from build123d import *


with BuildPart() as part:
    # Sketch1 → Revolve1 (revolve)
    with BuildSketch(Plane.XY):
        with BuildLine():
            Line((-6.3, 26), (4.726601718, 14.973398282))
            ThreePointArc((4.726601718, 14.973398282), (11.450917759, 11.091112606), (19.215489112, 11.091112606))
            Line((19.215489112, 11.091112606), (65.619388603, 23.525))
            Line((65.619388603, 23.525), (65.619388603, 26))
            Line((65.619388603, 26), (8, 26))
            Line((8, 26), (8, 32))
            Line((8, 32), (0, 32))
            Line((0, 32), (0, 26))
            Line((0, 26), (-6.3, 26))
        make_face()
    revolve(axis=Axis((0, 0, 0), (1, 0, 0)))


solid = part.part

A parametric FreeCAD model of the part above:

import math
import FreeCAD as App
import Part
import Sketcher
from FreeCAD import Vector
Q = App.Units.Quantity

doc = App.newDocument("Part")
body = doc.addObject("PartDesign::Body", "Body")

# Sketch on XY plane
sketch1 = body.newObject("Sketcher::SketchObject", "Sketch")
sketch1.AttachmentSupport = (doc.getObject("XY_Plane"), [""])
sketch1.MapMode = "FlatFace"
sketch1.addGeometry(Part.LineSegment(Vector(-6.3, 26, 0), Vector(4.7, 15, 0)), False)
sketch1.addGeometry(Part.ArcOfCircle(Part.Circle(Vector(15.3, 25.6, 0), Vector(0, 0, 1), 15), math.radians(-135), math.radians(-75)), False)
sketch1.addGeometry(Part.LineSegment(Vector(19.2, 11.1, 0), Vector(65.6, 23.5, 0)), False)
sketch1.addGeometry(Part.LineSegment(Vector(65.6, 23.5, 0), Vector(65.6, 26, 0)), False)
sketch1.addGeometry(Part.LineSegment(Vector(65.6, 26, 0), Vector(8, 26, 0)), False)
sketch1.addGeometry(Part.LineSegment(Vector(8, 26, 0), Vector(8, 32, 0)), False)
sketch1.addGeometry(Part.LineSegment(Vector(8, 32, 0), Vector(0, 32, 0)), False)
sketch1.addGeometry(Part.LineSegment(Vector(0, 32, 0), Vector(0, 26, 0)), False)
sketch1.addGeometry(Part.LineSegment(Vector(0, 26, 0), Vector(-6.3, 26, 0)), False)
sketch1.addConstraint(Sketcher.Constraint("Tangent", 0, 2, 1, 1))
sketch1.addConstraint(Sketcher.Constraint("Tangent", 1, 2, 2, 1))
sketch1.addConstraint(Sketcher.Constraint("Coincident", 2, 2, 3, 1))
sketch1.addConstraint(Sketcher.Constraint("Coincident", 3, 2, 4, 1))
sketch1.addConstraint(Sketcher.Constraint("Coincident", 4, 2, 5, 1))
sketch1.addConstraint(Sketcher.Constraint("Coincident", 5, 2, 6, 1))
sketch1.addConstraint(Sketcher.Constraint("Coincident", 6, 2, 7, 1))
sketch1.addConstraint(Sketcher.Constraint("Coincident", 7, 2, 8, 1))
sketch1.addConstraint(Sketcher.Constraint("Coincident", 8, 2, 0, 1))
sketch1.addConstraint(Sketcher.Constraint("Vertical", 3))
sketch1.addConstraint(Sketcher.Constraint("Horizontal", 4))
sketch1.addConstraint(Sketcher.Constraint("Vertical", 5))
sketch1.addConstraint(Sketcher.Constraint("Horizontal", 6))
sketch1.addConstraint(Sketcher.Constraint("Vertical", 7))
sketch1.addConstraint(Sketcher.Constraint("Horizontal", 8))
sketch1.addConstraint(Sketcher.Constraint("PointOnObject", 6, 2, -2))
sketch1.addConstraint(Sketcher.Constraint("Horizontal", 4, 2, 7, 2))
sketch1.addConstraint(Sketcher.Constraint("Radius", 1, 15.0))
sketch1.addConstraint(Sketcher.Constraint("DistanceX", 6, 2, 6, 1, 8.0))
sketch1.addConstraint(Sketcher.Constraint("DistanceY", 5, 1, 5, 2, 6.0))
sketch1.addConstraint(Sketcher.Constraint("Angle", 0, Q("-45 deg")))
sketch1.addConstraint(Sketcher.Constraint("Angle", 2, Q("15 deg")))
sketch1.addConstraint(Sketcher.Constraint("DistanceX", 8, 2, 8, 1, 6.3))
sketch1.addConstraint(Sketcher.Constraint("DistanceY", -1, 1, 3, 2, 26.0))
sketch1.addConstraint(Sketcher.Constraint("DistanceY", 3, 1, 3, 2, 2.475))
sketch1.addConstraint(Sketcher.Constraint("DistanceY", -1, 1, 1, 3, 25.58))
revolution = body.newObject("PartDesign::Revolution", "Revolution")
revolution.Profile = sketch1
revolution.ReferenceAxis = (sketch1, ["H_Axis"])
revolution.Angle = 360

doc.recompute()
